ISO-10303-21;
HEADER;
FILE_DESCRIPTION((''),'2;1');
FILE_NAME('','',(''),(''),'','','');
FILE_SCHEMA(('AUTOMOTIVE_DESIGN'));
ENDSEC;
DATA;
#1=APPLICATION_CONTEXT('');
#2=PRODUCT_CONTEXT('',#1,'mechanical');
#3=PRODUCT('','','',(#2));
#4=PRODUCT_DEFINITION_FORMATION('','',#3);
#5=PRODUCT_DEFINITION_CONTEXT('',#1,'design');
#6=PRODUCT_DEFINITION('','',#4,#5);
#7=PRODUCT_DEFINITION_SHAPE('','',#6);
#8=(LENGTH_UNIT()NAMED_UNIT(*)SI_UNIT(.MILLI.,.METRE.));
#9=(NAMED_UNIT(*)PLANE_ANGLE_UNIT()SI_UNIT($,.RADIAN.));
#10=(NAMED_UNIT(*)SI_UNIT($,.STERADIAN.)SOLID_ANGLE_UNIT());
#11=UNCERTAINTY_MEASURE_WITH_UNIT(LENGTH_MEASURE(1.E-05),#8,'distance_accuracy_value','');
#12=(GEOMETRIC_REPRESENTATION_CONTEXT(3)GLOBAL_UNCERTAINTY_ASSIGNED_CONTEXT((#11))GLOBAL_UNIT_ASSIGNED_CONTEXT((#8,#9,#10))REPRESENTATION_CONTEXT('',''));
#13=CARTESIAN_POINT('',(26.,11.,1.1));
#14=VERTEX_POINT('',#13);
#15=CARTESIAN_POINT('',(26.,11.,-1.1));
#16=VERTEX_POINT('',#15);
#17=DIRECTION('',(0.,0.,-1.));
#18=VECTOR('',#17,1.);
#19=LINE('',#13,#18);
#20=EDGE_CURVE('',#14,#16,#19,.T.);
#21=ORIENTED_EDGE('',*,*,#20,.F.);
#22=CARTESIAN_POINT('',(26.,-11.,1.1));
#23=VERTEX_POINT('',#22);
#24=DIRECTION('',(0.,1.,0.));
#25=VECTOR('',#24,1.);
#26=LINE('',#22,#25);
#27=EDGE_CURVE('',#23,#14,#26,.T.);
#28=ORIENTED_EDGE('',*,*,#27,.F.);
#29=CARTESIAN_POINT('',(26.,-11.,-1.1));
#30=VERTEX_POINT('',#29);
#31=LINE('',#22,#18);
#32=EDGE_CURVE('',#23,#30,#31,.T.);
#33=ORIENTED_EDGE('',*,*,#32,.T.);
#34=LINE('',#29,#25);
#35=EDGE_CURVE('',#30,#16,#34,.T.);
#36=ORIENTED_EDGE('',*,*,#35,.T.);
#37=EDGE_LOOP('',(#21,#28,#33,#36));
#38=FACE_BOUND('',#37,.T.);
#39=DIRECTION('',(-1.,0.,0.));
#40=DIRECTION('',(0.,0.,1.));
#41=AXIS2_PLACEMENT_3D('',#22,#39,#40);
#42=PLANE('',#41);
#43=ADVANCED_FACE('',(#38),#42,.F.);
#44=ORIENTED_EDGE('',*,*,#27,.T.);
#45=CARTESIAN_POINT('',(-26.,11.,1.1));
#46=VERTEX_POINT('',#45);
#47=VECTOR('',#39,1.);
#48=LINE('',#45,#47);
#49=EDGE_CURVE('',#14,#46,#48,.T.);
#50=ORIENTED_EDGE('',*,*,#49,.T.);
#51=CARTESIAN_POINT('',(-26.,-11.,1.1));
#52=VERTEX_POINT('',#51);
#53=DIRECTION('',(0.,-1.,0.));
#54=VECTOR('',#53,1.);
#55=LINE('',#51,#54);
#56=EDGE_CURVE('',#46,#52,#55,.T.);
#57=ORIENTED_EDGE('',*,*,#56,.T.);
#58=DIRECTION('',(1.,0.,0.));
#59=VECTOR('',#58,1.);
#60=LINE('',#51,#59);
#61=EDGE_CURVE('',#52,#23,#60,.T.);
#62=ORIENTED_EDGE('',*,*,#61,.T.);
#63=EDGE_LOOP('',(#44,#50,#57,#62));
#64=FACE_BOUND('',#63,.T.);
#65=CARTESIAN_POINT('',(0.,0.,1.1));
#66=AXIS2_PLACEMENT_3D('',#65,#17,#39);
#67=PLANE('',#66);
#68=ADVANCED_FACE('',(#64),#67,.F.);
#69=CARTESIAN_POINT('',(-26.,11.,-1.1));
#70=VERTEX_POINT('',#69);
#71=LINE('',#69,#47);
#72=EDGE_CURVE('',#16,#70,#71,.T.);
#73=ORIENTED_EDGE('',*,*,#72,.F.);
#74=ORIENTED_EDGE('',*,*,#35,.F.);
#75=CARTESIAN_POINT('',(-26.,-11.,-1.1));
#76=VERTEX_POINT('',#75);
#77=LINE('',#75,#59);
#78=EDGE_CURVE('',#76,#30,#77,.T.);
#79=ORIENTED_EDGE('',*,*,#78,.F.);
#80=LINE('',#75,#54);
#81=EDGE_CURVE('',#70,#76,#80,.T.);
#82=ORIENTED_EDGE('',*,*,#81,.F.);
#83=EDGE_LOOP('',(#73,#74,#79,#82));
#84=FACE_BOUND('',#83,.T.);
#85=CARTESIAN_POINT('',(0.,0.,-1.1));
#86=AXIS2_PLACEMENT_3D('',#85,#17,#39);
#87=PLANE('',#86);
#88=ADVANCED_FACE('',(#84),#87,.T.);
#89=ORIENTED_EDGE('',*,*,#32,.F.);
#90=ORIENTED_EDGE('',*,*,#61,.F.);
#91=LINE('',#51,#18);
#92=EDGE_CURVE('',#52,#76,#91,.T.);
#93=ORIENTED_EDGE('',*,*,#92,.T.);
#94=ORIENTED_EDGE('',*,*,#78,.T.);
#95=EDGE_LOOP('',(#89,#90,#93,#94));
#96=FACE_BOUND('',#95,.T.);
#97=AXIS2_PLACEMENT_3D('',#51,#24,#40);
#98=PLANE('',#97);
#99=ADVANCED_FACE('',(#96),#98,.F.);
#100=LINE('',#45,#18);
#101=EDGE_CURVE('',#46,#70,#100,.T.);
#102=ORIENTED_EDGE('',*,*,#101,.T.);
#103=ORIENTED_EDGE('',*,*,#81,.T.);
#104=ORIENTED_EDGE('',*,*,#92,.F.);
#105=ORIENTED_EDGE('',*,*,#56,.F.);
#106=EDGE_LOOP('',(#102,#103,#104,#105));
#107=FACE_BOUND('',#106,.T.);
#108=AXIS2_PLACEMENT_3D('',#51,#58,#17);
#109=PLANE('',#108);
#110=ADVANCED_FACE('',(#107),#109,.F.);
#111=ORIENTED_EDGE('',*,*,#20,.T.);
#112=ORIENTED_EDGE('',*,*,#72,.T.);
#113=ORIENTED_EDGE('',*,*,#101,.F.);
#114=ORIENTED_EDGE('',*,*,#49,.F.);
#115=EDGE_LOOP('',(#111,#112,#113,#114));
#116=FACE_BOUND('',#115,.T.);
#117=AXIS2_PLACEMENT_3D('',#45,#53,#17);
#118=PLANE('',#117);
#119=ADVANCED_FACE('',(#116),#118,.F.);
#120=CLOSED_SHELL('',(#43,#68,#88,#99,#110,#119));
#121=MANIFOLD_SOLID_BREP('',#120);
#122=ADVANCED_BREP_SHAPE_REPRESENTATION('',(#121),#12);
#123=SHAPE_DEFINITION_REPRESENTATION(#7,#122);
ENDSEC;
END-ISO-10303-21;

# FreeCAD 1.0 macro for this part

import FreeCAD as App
import Part
import Sketcher


def add_polygon(sketch, points):
    """Adds a closed chain of lines whose ends are joined by coincident constraints."""
    first, n = sketch.GeometryCount, len(points)
    for a, b in zip(points, points[1:] + points[:1]):
        sketch.addGeometry(Part.LineSegment(App.Vector(*a, 0), App.Vector(*b, 0)), False)
    for i in range(n):
        sketch.addConstraint(Sketcher.Constraint("Coincident", first + i, 2, first + (i + 1) % n, 1))

doc = App.newDocument("Part")
body = doc.addObject("PartDesign::Body", "Body")

# Sketch on XY plane
sketch1 = doc.addObject("Sketcher::SketchObject", "Sketch")
body.addObject(sketch1)
sketch1.AttachmentSupport = (doc.XY_Plane, [""])
sketch1.MapMode = "FlatFace"
add_polygon(sketch1, [(-26, 11), (-26, -11), (26, -11), (26, 11)])  # lines 0-3
sketch1.addConstraint(Sketcher.Constraint("Vertical", 0))
sketch1.addConstraint(Sketcher.Constraint("Horizontal", 1))
sketch1.addConstraint(Sketcher.Constraint("Vertical", 2))
sketch1.addConstraint(Sketcher.Constraint("Horizontal", 3))
sketch1.addConstraint(Sketcher.Constraint("Symmetric", 0, 2, 2, 2, -1, 1))
sketch1.addConstraint(Sketcher.Constraint("DistanceX", 1, 1, 1, 2, 52.0))
sketch1.addConstraint(Sketcher.Constraint("DistanceY", 0, 2, 0, 1, 22.0))
pad1 = doc.addObject("PartDesign::Pad", "Pad")
body.addObject(pad1)
pad1.Profile = sketch1
pad1.Length = 2.2
pad1.Midplane = True

doc.recompute()
